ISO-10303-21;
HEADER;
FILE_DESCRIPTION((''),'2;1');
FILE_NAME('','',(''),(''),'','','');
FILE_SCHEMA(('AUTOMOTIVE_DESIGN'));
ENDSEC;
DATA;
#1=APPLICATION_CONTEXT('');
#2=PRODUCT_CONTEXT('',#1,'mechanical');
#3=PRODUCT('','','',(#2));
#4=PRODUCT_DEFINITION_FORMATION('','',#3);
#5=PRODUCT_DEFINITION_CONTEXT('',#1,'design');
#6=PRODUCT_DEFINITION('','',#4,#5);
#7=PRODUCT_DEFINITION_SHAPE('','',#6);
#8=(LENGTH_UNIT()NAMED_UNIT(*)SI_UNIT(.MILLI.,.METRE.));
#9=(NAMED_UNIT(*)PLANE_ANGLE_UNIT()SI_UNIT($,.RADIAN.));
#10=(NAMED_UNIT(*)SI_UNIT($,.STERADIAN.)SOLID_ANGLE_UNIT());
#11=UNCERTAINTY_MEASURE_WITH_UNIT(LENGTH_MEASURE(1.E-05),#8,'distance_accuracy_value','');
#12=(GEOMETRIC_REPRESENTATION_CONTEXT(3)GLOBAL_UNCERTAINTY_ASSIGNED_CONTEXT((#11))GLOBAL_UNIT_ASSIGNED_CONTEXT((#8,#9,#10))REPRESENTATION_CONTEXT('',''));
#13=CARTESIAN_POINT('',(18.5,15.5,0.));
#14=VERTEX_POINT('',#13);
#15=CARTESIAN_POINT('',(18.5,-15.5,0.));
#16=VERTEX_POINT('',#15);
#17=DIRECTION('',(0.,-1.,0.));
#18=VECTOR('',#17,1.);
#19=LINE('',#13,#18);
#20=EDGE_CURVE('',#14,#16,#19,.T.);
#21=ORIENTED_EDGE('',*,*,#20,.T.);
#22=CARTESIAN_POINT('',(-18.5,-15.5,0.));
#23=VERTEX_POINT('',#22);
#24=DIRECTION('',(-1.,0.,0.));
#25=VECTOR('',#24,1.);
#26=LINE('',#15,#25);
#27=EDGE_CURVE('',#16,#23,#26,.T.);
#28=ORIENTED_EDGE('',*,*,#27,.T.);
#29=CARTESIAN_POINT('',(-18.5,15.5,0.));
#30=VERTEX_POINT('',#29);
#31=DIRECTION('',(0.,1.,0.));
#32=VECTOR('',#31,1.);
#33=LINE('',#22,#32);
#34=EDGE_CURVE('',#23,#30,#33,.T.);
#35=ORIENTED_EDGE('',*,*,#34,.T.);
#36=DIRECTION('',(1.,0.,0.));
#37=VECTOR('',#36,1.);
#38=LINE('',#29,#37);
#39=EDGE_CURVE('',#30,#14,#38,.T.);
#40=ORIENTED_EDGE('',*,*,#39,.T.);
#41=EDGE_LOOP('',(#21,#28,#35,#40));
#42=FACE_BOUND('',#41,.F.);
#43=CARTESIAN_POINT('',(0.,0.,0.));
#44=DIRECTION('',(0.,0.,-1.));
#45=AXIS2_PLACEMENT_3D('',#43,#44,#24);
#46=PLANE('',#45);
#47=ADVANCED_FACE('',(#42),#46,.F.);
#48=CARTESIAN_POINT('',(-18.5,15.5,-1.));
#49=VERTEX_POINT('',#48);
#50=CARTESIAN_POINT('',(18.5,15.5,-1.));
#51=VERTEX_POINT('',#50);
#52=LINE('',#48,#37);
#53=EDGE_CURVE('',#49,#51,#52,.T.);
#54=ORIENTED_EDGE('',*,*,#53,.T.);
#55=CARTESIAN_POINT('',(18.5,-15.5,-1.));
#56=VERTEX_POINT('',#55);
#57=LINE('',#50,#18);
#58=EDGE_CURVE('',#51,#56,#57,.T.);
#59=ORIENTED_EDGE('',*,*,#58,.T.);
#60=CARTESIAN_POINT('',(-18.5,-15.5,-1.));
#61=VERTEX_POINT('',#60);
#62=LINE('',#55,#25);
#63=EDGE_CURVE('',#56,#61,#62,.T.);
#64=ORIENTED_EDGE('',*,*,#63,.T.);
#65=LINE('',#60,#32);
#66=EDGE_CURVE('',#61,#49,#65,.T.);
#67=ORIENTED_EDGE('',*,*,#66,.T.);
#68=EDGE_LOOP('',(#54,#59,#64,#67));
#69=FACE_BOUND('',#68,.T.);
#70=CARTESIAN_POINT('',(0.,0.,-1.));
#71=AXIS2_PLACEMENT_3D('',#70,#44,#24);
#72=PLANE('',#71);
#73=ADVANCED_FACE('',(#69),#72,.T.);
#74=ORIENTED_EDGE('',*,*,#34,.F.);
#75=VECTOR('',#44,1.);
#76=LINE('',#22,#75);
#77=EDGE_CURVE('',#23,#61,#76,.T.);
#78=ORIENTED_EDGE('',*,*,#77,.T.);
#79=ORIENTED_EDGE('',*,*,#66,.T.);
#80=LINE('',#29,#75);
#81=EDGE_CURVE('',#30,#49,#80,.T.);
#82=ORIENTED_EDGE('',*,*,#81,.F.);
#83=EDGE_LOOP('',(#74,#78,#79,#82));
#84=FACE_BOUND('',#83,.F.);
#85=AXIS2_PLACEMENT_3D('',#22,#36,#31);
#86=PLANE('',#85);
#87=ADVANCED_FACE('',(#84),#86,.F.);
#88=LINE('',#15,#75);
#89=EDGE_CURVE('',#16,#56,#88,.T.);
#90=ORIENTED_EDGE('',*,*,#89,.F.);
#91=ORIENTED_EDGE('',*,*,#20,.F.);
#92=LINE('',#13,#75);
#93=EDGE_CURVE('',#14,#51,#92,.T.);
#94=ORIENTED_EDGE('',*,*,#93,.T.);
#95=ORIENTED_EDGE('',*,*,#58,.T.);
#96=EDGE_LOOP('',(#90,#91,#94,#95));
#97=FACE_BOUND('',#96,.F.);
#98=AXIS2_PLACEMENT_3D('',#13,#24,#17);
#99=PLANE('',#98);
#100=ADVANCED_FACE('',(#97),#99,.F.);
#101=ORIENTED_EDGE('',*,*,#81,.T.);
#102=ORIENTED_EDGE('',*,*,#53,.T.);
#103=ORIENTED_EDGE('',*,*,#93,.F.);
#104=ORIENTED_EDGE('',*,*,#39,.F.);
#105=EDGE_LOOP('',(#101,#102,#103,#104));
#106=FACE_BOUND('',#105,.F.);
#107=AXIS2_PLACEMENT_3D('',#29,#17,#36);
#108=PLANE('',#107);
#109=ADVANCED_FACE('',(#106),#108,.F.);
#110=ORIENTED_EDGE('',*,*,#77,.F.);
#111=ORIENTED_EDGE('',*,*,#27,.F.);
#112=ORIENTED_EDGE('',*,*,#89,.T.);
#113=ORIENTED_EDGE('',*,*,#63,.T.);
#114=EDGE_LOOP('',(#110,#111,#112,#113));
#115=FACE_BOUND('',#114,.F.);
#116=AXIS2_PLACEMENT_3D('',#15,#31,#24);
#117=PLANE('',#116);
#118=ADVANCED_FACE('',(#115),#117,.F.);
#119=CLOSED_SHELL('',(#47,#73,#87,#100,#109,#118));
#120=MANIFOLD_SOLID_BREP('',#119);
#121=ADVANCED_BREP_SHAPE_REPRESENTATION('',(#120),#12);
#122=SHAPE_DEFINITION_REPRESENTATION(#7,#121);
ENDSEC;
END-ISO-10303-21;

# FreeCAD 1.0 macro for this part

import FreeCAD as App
import Part
import Sketcher

V = App.Vector
Q = App.Units.Quantity


def add_polygon(sketch, points):
    """Adds a closed chain of lines whose ends are joined by coincident constraints."""
    first, n = sketch.GeometryCount, len(points)
    for a, b in zip(points, points[1:] + points[:1]):
        sketch.addGeometry(Part.LineSegment(App.Vector(*a, 0), App.Vector(*b, 0)), False)
    for i in range(n):
        sketch.addConstraint(Sketcher.Constraint("Coincident", first + i, 2, first + (i + 1) % n, 1))

doc = App.newDocument("Part")
body = doc.addObject("PartDesign::Body", "Body")

# Sketch on XY plane
sketch1 = body.newObject("Sketcher::SketchObject", "Sketch")
sketch1.AttachmentSupport = (doc.getObject("XY_Plane"), [""])
sketch1.MapMode = "FlatFace"
add_polygon(sketch1, [(18, 16), (18, -16), (-18, -16), (-18, 16)])  # lines 0-3
sketch1.addConstraint(Sketcher.Constraint("Vertical", 0))
sketch1.addConstraint(Sketcher.Constraint("Horizontal", 1))
sketch1.addConstraint(Sketcher.Constraint("Vertical", 2))
sketch1.addConstraint(Sketcher.Constraint("Horizontal", 3))
sketch1.addConstraint(Sketcher.Constraint("Symmetric", 0, 2, 2, 2, -1, 1))
sketch1.addConstraint(Sketcher.Constraint("DistanceX", -1, 1, 0, 2, Q("18.5 mm")))
sketch1.addConstraint(Sketcher.Constraint("DistanceY", 0, 2, 0, 1, Q("31 mm")))
pad1 = body.newObject("PartDesign::Pad", "Pad")
pad1.Profile = sketch1
pad1.Length = 1
pad1.Reversed = True

doc.recompute()
